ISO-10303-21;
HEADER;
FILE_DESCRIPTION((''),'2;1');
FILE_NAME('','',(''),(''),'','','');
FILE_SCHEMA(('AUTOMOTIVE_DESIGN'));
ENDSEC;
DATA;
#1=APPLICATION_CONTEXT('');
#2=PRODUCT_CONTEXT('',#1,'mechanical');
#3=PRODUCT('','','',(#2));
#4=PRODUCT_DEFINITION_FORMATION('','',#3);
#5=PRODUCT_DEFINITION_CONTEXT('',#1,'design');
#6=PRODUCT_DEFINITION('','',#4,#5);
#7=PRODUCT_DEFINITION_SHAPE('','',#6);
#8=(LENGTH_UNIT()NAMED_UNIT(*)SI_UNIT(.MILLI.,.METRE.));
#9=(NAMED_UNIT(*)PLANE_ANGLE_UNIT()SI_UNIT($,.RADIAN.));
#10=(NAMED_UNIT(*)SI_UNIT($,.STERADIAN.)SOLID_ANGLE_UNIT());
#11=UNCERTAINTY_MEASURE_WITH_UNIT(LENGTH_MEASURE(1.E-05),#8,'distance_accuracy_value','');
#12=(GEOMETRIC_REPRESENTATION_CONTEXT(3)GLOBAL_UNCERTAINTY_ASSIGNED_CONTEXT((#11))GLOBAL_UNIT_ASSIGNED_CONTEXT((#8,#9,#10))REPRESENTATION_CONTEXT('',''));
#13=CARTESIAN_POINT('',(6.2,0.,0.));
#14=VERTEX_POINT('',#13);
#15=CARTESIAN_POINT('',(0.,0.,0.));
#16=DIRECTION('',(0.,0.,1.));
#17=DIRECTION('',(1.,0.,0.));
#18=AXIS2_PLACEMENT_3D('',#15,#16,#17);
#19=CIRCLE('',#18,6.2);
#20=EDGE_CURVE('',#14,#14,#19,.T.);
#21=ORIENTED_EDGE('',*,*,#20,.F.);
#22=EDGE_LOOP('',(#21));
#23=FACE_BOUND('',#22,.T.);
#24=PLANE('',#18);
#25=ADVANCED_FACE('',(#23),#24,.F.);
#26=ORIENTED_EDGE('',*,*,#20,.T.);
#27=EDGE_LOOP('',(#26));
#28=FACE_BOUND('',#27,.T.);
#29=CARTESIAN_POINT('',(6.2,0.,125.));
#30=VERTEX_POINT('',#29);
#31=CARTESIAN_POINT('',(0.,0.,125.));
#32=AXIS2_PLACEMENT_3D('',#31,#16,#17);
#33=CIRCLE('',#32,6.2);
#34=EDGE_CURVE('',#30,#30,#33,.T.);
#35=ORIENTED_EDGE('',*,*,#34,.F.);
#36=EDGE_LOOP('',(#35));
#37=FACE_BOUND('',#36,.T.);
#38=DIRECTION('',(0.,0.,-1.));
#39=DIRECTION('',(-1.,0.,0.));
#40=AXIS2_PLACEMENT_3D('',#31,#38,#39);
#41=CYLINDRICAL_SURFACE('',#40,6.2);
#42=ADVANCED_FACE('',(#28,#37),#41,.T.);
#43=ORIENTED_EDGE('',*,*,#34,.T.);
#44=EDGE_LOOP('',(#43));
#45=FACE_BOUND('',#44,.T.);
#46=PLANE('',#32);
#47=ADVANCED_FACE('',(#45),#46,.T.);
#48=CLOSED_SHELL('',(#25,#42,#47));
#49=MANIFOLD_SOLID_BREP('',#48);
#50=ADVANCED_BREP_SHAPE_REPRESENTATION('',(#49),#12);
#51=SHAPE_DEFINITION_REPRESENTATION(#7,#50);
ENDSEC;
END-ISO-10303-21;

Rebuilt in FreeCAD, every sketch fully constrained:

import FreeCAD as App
import Part
import Sketcher
from FreeCAD import Vector
Q = App.Units.Quantity

doc = App.newDocument("Part")
body = doc.addObject("PartDesign::Body", "Body")

# Sketch on XY plane
sketch1 = body.newObject("Sketcher::SketchObject", "Sketch")
sketch1.AttachmentSupport = (doc.getObject("XY_Plane"), [""])
sketch1.MapMode = "FlatFace"
sketch1.addGeometry(Part.Circle(Vector(0, 0, 0), Vector(0, 0, 1), 6), False)
sketch1.addConstraint([
    Sketcher.Constraint("Coincident", 0, 3, -1, 1),
    Sketcher.Constraint("Diameter", 0, Q("12.4 mm")),
])
pad1 = body.newObject("PartDesign::Pad", "Pad")
pad1.Profile = sketch1
pad1.Length = 125

doc.recompute()
